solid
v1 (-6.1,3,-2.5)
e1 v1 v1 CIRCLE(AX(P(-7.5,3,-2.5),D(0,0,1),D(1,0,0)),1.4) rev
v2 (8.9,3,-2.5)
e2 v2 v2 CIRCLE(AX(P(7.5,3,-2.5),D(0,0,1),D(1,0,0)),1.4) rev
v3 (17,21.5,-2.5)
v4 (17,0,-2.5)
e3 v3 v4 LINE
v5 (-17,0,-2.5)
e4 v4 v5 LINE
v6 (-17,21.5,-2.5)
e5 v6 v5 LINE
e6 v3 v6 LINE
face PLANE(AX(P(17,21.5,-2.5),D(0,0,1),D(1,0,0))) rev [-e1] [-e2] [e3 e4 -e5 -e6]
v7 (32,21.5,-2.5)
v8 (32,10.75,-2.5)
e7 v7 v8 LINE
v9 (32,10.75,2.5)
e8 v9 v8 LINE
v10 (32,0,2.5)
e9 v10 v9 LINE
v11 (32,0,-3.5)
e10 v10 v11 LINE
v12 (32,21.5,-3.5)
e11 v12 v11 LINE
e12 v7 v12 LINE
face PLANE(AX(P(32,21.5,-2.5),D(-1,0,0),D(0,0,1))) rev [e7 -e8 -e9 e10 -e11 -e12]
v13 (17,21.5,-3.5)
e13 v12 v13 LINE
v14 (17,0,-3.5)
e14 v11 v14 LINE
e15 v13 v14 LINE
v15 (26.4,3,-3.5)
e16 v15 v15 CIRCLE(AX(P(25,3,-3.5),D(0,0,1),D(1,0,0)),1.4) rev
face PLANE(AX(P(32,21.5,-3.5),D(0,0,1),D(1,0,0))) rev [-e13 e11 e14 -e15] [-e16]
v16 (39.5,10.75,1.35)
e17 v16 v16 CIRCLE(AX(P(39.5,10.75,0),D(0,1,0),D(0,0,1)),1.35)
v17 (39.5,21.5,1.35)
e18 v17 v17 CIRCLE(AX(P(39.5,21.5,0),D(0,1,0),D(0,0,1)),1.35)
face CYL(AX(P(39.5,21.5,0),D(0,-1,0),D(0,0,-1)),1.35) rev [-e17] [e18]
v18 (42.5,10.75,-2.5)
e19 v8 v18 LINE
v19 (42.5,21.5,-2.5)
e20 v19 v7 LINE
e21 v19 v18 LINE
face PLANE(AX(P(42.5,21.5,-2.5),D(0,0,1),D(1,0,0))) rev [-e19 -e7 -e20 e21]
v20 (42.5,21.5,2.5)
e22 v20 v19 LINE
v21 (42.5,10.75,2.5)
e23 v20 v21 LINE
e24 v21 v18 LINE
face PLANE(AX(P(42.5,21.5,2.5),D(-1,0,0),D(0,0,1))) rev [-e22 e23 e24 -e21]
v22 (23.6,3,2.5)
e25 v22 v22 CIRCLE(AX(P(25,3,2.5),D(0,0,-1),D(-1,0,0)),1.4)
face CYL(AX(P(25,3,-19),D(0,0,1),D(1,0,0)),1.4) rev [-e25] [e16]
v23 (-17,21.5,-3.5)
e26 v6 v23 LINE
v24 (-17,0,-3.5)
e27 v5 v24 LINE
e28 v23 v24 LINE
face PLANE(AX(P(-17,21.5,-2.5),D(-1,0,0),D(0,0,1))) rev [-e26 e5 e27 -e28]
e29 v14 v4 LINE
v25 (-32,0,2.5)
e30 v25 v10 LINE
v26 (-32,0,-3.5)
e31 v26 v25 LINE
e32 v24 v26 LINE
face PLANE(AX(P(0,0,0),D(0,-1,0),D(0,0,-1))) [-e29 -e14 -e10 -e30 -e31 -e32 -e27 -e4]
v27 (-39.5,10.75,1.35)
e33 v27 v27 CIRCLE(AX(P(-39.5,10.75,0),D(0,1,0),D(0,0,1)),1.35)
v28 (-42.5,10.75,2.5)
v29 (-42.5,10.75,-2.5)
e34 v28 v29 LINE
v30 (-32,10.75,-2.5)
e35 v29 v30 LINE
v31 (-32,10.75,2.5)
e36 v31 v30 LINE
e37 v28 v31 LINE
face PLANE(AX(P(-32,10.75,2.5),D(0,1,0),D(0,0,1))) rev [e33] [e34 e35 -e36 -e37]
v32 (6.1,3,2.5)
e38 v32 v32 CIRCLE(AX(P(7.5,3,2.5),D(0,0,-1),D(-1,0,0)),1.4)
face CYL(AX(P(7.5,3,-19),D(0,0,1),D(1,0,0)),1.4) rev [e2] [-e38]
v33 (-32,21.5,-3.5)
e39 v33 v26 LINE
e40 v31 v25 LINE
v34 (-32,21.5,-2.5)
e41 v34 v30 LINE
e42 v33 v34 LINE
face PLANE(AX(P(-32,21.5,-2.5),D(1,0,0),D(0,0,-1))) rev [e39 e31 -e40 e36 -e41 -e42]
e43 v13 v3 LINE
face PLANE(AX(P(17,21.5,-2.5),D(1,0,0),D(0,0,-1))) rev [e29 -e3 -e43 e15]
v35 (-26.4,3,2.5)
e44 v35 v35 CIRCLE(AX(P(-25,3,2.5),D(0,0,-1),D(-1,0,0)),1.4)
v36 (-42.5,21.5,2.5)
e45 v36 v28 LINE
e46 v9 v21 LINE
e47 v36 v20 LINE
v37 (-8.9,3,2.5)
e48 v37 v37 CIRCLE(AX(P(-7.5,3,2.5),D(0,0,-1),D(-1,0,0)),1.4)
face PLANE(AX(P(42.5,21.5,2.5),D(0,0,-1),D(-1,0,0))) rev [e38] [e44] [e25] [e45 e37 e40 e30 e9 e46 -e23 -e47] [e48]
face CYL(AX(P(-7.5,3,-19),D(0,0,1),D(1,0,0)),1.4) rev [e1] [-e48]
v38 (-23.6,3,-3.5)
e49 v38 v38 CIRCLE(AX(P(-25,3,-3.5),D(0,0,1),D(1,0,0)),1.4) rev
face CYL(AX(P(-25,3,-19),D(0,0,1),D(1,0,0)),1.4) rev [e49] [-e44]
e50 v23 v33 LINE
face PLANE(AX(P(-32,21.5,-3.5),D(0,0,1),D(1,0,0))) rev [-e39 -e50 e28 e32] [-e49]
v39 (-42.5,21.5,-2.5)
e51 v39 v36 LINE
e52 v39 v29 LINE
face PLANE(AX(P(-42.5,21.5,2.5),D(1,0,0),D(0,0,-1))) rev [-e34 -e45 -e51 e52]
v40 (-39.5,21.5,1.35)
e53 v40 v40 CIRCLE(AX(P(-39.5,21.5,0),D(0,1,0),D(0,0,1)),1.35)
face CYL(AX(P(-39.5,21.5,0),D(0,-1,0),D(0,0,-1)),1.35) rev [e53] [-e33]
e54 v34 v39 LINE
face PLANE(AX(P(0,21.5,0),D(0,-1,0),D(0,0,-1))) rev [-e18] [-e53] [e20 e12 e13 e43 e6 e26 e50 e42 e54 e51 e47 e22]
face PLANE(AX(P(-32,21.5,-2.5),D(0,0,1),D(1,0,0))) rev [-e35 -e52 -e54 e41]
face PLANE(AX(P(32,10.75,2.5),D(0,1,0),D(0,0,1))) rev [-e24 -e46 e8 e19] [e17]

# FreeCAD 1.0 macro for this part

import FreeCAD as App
import Part
import Sketcher
Q = App.Units.Quantity

doc = App.newDocument("Part")
body = doc.addObject("PartDesign::Body", "Body")

sketch1 = body.newObject("Sketcher::SketchObject", "Sketch")
sketch1.AttachmentSupport = (doc.getObject("XZ_Plane"), [""])
sketch1.MapMode = "FlatFace"
sketch1.addGeometry(Part.LineSegment(App.Vector(-42.5, 2.5, 0), App.Vector(42.5, 2.5, 0)), False)
sketch1.addGeometry(Part.LineSegment(App.Vector(42.5, 2.5, 0), App.Vector(42.5, -2.5, 0)), False)
sketch1.addGeometry(Part.LineSegment(App.Vector(42.5, -2.5, 0), App.Vector(32, -2.5, 0)), False)
sketch1.addGeometry(Part.LineSegment(App.Vector(32, -2.5, 0), App.Vector(32, -3.5, 0)), False)
sketch1.addGeometry(Part.LineSegment(App.Vector(32, -3.5, 0), App.Vector(17, -3.5, 0)), False)
sketch1.addGeometry(Part.LineSegment(App.Vector(17, -3.5, 0), App.Vector(17, -2.5, 0)), False)
sketch1.addGeometry(Part.LineSegment(App.Vector(17, -2.5, 0), App.Vector(-17, -2.5, 0)), False)
sketch1.addGeometry(Part.LineSegment(App.Vector(-17, -2.5, 0), App.Vector(-17, -3.5, 0)), False)
sketch1.addGeometry(Part.LineSegment(App.Vector(-17, -3.5, 0), App.Vector(-32, -3.5, 0)), False)
sketch1.addGeometry(Part.LineSegment(App.Vector(-32, -3.5, 0), App.Vector(-32, -2.5, 0)), False)
sketch1.addGeometry(Part.LineSegment(App.Vector(-32, -2.5, 0), App.Vector(-42.5, -2.5, 0)), False)
sketch1.addGeometry(Part.LineSegment(App.Vector(-42.5, -2.5, 0), App.Vector(-42.5, 2.5, 0)), False)
sketch1.addGeometry(Part.Circle(App.Vector(39.5, 0, 0), App.Vector(0, 0, 1), 1.4), False)
sketch1.addGeometry(Part.Circle(App.Vector(-39.5, 0, 0), App.Vector(0, 0, 1), 1.4), False)
sketch1.addConstraint(Sketcher.Constraint("Coincident", 0, 2, 1, 1))
sketch1.addConstraint(Sketcher.Constraint("Coincident", 1, 2, 2, 1))
sketch1.addConstraint(Sketcher.Constraint("Coincident", 2, 2, 3, 1))
sketch1.addConstraint(Sketcher.Constraint("Coincident", 3, 2, 4, 1))
sketch1.addConstraint(Sketcher.Constraint("Coincident", 4, 2, 5, 1))
sketch1.addConstraint(Sketcher.Constraint("Coincident", 5, 2, 6, 1))
sketch1.addConstraint(Sketcher.Constraint("Coincident", 6, 2, 7, 1))
sketch1.addConstraint(Sketcher.Constraint("Coincident", 7, 2, 8, 1))
sketch1.addConstraint(Sketcher.Constraint("Coincident", 8, 2, 9, 1))
sketch1.addConstraint(Sketcher.Constraint("Coincident", 9, 2, 10, 1))
sketch1.addConstraint(Sketcher.Constraint("Coincident", 10, 2, 11, 1))
sketch1.addConstraint(Sketcher.Constraint("Coincident", 11, 2, 0, 1))
sketch1.addConstraint(Sketcher.Constraint("Horizontal", 0))
sketch1.addConstraint(Sketcher.Constraint("Vertical", 1))
sketch1.addConstraint(Sketcher.Constraint("Horizontal", 2))
sketch1.addConstraint(Sketcher.Constraint("Vertical", 3))
sketch1.addConstraint(Sketcher.Constraint("Horizontal", 4))
sketch1.addConstraint(Sketcher.Constraint("Vertical", 5))
sketch1.addConstraint(Sketcher.Constraint("Horizontal", 6))
sketch1.addConstraint(Sketcher.Constraint("Vertical", 7))
sketch1.addConstraint(Sketcher.Constraint("Horizontal", 8))
sketch1.addConstraint(Sketcher.Constraint("Vertical", 9))
sketch1.addConstraint(Sketcher.Constraint("Horizontal", 10))
sketch1.addConstraint(Sketcher.Constraint("Vertical", 11))
sketch1.addConstraint(Sketcher.Constraint("Equal", 12, 13))
sketch1.addConstraint(Sketcher.Constraint("Symmetric", 12, 3, 13, 3, -1, 1))
sketch1.addConstraint(Sketcher.Constraint("Symmetric", 0, 2, 10, 2, -1, 1))
sketch1.addConstraint(Sketcher.Constraint("Symmetric", 4, 2, 7, 2, -2))
sketch1.addConstraint(Sketcher.Constraint("Symmetric", 2, 2, 9, 2, -2))
sketch1.addConstraint(Sketcher.Constraint("PointOnObject", 12, 3, -1))
sketch1.addConstraint(Sketcher.Constraint("Horizontal", 2, 2, 5, 2))
sketch1.addConstraint(Sketcher.Constraint("Diameter", 12, Q("2.7 mm")))
sketch1.addConstraint(Sketcher.Constraint("DistanceX", 0, 1, 0, 2, Q("85 mm")))
sketch1.addConstraint(Sketcher.Constraint("DistanceX", 4, 2, 4, 1, Q("15 mm")))
sketch1.addConstraint(Sketcher.Constraint("DistanceX", 6, 2, 6, 1, Q("34 mm")))
sketch1.addConstraint(Sketcher.Constraint("DistanceY", 1, 2, 1, 1, Q("5 mm")))
sketch1.addConstraint(Sketcher.Constraint("DistanceY", 3, 2, 3, 1, Q("1 mm")))
sketch1.addConstraint(Sketcher.Constraint("DistanceX", 13, 3, 12, 3, Q("79 mm")))
pad1 = body.newObject("PartDesign::Pad", "Pad")
pad1.Profile = sketch1
pad1.Length = 21.5
pad1.Reversed = True

sketch2 = body.newObject("Sketcher::SketchObject", "Sketch001")
sketch2.AttachmentSupport = (doc.getObject("XY_Plane"), [""])
sketch2.MapMode = "FlatFace"
sketch2.AttachmentOffset = App.Placement(App.Vector(0, 0, 2.5), App.Rotation())
sketch2.addGeometry(Part.Circle(App.Vector(7.5, 3, 0), App.Vector(0, 0, 1), 1.4), False)
sketch2.addGeometry(Part.Circle(App.Vector(-7.5, 3, 0), App.Vector(0, 0, 1), 1.4), False)
sketch2.addGeometry(Part.Circle(App.Vector(25, 3, 0), App.Vector(0, 0, 1), 1.4), False)
sketch2.addGeometry(Part.Circle(App.Vector(-25, 3, 0), App.Vector(0, 0, 1), 1.4), False)
sketch2.addConstraint(Sketcher.Constraint("Equal", 0, 1))
sketch2.addConstraint(Sketcher.Constraint("Equal", 1, 2))
sketch2.addConstraint(Sketcher.Constraint("Equal", 2, 3))
sketch2.addConstraint(Sketcher.Constraint("Symmetric", 0, 3, 1, 3, -2))
sketch2.addConstraint(Sketcher.Constraint("Symmetric", 2, 3, 3, 3, -2))
sketch2.addConstraint(Sketcher.Constraint("Horizontal", 1, 3, 2, 3))
sketch2.addConstraint(Sketcher.Constraint("Diameter", 0, Q("2.8 mm")))
sketch2.addConstraint(Sketcher.Constraint("DistanceY", -1, 1, 0, 3, Q("3 mm")))
sketch2.addConstraint(Sketcher.Constraint("DistanceX", -1, 1, 2, 3, Q("25 mm")))
sketch2.addConstraint(Sketcher.Constraint("DistanceX", 1, 3, 0, 3, Q("15 mm")))
pocket1 = body.newObject("PartDesign::Pocket", "Pocket")
pocket1.Profile = sketch2
pocket1.Length = 21.5

sketch3 = body.newObject("Sketcher::SketchObject", "Sketch002")
sketch3.AttachmentSupport = (doc.getObject("XY_Plane"), [""])
sketch3.MapMode = "FlatFace"
sketch3.AttachmentOffset = App.Placement(App.Vector(0, 0, -2.5), App.Rotation())
sketch3.addGeometry(Part.LineSegment(App.Vector(42, 11, 0), App.Vector(42, 0, 0)), False)
sketch3.addGeometry(Part.LineSegment(App.Vector(42, 0, 0), App.Vector(32, 0, 0)), False)
sketch3.addGeometry(Part.LineSegment(App.Vector(32, 0, 0), App.Vector(32, 11, 0)), False)
sketch3.addGeometry(Part.LineSegment(App.Vector(32, 11, 0), App.Vector(42, 11, 0)), False)
sketch3.addGeometry(Part.LineSegment(App.Vector(-32, 11, 0), App.Vector(-32, 0, 0)), False)
sketch3.addGeometry(Part.LineSegment(App.Vector(-32, 0, 0), App.Vector(-42, 0, 0)), False)
sketch3.addGeometry(Part.LineSegment(App.Vector(-42, 0, 0), App.Vector(-42, 11, 0)), False)
sketch3.addGeometry(Part.LineSegment(App.Vector(-42, 11, 0), App.Vector(-32, 11, 0)), False)
sketch3.addConstraint(Sketcher.Constraint("Coincident", 0, 2, 1, 1))
sketch3.addConstraint(Sketcher.Constraint("Coincident", 1, 2, 2, 1))
sketch3.addConstraint(Sketcher.Constraint("Coincident", 2, 2, 3, 1))
sketch3.addConstraint(Sketcher.Constraint("Coincident", 3, 2, 0, 1))
sketch3.addConstraint(Sketcher.Constraint("Coincident", 4, 2, 5, 1))
sketch3.addConstraint(Sketcher.Constraint("Coincident", 5, 2, 6, 1))
sketch3.addConstraint(Sketcher.Constraint("Coincident", 6, 2, 7, 1))
sketch3.addConstraint(Sketcher.Constraint("Coincident", 7, 2, 4, 1))
sketch3.addConstraint(Sketcher.Constraint("Vertical", 0))
sketch3.addConstraint(Sketcher.Constraint("Horizontal", 1))
sketch3.addConstraint(Sketcher.Constraint("Vertical", 2))
sketch3.addConstraint(Sketcher.Constraint("Horizontal", 3))
sketch3.addConstraint(Sketcher.Constraint("Vertical", 4))
sketch3.addConstraint(Sketcher.Constraint("Horizontal", 5))
sketch3.addConstraint(Sketcher.Constraint("Vertical", 6))
sketch3.addConstraint(Sketcher.Constraint("Horizontal", 7))
sketch3.addConstraint(Sketcher.Constraint("Symmetric", 1, 2, 4, 2, -1, 1))
sketch3.addConstraint(Sketcher.Constraint("Symmetric", 0, 2, 5, 2, -2))
sketch3.addConstraint(Sketcher.Constraint("Horizontal", 3, 2, 6, 2))
sketch3.addConstraint(Sketcher.Constraint("DistanceX", 1, 2, 1, 1, Q("10.5 mm")))
sketch3.addConstraint(Sketcher.Constraint("DistanceX", -1, 1, 1, 2, Q("32 mm")))
sketch3.addConstraint(Sketcher.Constraint("DistanceY", 0, 2, 0, 1, Q("10.75 mm")))
pocket2 = body.newObject("PartDesign::Pocket", "Pocket001")
pocket2.Profile = sketch3
pocket2.Type = "ThroughAll"
pocket2.Midplane = True

doc.recompute()
